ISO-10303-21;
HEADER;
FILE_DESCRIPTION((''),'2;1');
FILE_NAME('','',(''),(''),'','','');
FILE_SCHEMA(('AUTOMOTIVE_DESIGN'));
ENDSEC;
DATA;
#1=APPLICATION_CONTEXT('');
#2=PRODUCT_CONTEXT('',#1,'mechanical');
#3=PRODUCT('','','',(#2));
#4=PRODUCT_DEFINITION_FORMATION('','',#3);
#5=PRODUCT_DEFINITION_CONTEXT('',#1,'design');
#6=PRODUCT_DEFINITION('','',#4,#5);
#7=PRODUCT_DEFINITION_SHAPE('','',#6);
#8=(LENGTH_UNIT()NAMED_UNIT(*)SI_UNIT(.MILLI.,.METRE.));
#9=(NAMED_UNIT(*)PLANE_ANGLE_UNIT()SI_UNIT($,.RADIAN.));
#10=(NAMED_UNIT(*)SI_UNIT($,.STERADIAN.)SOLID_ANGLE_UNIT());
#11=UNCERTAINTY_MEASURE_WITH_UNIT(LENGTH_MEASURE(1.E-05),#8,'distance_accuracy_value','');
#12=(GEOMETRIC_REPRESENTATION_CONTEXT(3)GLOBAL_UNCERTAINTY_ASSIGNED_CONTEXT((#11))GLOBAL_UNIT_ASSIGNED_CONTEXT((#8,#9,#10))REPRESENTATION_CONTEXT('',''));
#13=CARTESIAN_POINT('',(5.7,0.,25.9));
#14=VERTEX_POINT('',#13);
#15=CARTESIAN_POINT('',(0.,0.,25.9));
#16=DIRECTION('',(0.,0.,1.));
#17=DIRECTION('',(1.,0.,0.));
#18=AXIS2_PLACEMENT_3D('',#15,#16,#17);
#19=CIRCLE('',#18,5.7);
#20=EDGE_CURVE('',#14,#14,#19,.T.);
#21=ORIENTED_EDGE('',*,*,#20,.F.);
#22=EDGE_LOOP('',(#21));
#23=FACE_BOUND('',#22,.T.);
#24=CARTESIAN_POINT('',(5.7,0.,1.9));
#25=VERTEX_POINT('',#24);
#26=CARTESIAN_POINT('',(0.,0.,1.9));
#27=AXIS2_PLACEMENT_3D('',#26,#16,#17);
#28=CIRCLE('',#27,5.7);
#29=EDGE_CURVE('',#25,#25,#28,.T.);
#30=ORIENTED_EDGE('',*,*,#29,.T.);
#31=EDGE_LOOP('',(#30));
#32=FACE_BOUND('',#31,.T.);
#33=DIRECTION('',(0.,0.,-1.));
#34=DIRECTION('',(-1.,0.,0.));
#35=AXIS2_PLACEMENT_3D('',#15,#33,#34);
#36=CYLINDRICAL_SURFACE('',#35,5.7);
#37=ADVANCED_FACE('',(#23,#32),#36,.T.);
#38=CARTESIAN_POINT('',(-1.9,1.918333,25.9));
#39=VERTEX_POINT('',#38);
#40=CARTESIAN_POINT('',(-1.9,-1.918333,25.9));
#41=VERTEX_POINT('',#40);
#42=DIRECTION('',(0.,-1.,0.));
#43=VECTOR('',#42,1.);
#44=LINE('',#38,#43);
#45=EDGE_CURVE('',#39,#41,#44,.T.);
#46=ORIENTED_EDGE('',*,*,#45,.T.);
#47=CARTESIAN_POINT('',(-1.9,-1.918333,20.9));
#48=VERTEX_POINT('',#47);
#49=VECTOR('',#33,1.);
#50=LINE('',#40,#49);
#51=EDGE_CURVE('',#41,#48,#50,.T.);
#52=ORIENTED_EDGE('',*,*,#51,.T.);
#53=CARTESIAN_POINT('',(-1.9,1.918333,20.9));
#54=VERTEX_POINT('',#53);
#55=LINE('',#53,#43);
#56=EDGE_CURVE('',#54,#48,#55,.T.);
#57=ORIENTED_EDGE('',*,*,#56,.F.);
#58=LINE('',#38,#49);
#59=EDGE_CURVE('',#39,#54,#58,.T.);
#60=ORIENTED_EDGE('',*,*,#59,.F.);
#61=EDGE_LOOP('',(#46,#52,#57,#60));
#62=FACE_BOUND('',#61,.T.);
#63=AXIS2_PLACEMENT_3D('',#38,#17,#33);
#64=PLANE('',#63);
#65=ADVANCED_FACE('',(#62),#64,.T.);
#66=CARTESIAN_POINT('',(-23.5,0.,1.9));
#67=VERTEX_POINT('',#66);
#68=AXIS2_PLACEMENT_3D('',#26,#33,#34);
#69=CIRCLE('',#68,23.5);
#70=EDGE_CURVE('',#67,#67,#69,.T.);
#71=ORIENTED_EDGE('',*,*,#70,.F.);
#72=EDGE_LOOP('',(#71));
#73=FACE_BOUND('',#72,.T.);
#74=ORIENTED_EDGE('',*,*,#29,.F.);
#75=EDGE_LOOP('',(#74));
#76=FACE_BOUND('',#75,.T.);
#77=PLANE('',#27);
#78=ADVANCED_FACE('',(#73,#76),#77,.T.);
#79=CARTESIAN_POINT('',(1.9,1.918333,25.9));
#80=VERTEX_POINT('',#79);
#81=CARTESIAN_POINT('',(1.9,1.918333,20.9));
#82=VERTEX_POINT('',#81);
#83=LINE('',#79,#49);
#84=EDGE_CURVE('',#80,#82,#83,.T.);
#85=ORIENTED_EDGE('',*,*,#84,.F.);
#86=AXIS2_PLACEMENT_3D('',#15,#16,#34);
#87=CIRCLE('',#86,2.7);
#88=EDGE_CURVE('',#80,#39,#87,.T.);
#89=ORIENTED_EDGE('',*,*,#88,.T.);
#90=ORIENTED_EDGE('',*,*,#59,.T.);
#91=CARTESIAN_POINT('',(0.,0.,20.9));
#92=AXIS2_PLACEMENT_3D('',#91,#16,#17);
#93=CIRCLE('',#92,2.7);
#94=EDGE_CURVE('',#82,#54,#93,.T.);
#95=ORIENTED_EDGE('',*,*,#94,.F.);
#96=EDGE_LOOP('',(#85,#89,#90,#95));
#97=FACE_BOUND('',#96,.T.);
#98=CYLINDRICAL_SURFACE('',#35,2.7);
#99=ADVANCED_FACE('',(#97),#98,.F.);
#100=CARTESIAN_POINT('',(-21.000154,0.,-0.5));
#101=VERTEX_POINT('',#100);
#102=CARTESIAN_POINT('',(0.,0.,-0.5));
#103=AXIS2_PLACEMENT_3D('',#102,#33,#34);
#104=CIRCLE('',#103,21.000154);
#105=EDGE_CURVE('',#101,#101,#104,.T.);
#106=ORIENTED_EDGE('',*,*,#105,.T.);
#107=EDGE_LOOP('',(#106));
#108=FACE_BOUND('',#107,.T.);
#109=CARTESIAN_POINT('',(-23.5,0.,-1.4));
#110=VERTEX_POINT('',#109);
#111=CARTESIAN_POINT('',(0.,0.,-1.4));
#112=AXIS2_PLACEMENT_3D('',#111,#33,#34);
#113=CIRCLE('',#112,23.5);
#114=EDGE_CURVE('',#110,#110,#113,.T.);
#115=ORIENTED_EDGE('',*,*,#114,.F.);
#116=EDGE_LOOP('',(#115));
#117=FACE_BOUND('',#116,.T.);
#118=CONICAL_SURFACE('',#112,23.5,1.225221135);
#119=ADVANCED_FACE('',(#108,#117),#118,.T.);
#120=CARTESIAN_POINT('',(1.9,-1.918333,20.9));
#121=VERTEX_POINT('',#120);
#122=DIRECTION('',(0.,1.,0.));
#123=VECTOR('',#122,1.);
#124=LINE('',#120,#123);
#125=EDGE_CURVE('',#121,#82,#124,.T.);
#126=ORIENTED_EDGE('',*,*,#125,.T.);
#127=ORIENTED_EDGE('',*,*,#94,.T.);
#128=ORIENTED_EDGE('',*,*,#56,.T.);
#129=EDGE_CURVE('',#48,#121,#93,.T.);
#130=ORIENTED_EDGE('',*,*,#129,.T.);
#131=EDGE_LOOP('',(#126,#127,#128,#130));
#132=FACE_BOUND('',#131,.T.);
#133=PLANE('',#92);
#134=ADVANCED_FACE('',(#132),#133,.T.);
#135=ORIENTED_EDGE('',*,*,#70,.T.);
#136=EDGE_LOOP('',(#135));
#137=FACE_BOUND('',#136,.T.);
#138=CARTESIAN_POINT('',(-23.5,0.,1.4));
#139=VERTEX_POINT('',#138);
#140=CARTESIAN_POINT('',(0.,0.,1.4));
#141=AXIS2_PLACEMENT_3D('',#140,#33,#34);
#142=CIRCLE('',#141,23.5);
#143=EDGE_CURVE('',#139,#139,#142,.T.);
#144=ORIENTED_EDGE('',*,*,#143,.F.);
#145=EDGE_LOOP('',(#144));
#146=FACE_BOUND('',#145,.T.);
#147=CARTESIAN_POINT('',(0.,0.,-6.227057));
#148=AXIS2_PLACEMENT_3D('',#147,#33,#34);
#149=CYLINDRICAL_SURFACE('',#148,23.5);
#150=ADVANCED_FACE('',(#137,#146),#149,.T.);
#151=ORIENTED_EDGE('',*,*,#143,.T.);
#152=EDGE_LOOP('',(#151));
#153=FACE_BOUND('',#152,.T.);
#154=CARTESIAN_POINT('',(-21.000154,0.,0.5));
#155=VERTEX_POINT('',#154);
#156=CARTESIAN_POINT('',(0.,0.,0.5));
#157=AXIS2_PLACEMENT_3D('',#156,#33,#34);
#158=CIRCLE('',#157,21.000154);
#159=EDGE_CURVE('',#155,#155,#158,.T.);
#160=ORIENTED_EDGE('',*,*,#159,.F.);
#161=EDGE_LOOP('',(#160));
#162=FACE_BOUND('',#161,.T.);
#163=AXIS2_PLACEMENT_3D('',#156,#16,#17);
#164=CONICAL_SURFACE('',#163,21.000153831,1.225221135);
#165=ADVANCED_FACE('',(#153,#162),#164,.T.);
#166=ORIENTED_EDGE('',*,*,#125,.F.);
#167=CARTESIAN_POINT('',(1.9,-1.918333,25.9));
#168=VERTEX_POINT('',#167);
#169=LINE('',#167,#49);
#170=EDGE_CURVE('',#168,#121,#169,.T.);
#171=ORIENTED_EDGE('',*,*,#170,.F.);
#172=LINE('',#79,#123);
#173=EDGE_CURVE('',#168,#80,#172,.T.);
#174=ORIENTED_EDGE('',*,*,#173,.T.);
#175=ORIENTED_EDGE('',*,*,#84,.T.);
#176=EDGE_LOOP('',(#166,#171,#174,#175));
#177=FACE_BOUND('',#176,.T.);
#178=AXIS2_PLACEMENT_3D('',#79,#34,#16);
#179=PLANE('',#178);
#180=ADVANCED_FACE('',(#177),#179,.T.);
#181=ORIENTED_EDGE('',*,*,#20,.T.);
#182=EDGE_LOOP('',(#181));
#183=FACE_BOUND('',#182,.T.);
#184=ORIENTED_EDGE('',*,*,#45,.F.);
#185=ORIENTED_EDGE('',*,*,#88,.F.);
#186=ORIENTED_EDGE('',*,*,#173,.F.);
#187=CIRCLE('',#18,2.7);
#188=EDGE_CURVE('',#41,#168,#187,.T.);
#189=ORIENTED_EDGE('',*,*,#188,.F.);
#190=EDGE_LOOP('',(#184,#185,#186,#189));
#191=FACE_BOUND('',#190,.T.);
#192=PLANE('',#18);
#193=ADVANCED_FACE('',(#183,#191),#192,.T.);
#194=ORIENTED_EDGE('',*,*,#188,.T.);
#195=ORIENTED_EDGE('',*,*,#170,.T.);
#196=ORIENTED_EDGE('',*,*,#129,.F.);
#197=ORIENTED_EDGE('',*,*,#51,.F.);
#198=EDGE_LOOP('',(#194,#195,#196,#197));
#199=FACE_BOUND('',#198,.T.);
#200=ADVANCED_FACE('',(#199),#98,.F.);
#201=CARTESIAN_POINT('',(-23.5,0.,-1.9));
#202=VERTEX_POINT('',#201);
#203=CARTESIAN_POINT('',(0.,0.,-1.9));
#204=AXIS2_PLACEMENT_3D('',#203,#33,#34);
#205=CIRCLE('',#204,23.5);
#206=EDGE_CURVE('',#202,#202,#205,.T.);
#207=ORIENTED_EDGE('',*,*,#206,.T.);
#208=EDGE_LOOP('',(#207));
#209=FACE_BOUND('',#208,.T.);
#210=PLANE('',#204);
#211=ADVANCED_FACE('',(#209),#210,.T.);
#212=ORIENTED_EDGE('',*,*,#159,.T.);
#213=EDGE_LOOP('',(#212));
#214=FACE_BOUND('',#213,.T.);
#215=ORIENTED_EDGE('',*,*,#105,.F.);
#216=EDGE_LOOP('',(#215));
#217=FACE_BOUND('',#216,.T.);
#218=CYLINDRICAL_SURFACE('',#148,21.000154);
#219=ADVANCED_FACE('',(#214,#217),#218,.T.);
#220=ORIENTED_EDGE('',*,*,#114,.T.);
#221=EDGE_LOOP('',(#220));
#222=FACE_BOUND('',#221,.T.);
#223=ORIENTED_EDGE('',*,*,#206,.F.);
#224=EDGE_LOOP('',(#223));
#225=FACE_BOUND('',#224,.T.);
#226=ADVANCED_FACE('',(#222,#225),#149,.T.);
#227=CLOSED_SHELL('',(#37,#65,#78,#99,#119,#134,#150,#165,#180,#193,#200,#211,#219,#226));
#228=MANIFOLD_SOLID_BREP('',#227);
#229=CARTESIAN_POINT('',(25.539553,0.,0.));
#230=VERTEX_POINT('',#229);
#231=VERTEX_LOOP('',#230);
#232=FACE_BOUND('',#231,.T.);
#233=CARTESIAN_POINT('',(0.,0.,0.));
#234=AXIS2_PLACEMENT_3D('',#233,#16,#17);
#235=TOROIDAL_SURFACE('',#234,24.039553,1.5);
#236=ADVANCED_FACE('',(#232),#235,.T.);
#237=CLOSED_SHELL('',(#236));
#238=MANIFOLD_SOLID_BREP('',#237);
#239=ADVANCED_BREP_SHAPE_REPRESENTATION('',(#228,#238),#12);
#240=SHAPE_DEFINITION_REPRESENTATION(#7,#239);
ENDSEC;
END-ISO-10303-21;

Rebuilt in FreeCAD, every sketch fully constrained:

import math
import FreeCAD as App
import Part
import Sketcher
Q = App.Units.Quantity

doc = App.newDocument("Part")
body = doc.addObject("PartDesign::Body", "Body")

# Sketch on YZ plane
sketch1 = body.newObject("Sketcher::SketchObject", "Sketch")
sketch1.AttachmentSupport = (doc.getObject("YZ_Plane"), [""])
sketch1.MapMode = "FlatFace"
sketch1.addGeometry([
    Part.LineSegment(App.Vector(23.5, 1.9, 0), App.Vector(0, 1.9, 0)),  # 0
    Part.LineSegment(App.Vector(0, 1.9, 0), App.Vector(0, -1.9, 0)),  # 1
    Part.LineSegment(App.Vector(0, -1.9, 0), App.Vector(23.5, -1.9, 0)),  # 2
    Part.LineSegment(App.Vector(23.5, -1.9, 0), App.Vector(23.5, -1.4, 0)),  # 3
    Part.LineSegment(App.Vector(23.5, -1.4, 0), App.Vector(21, -0.5, 0)),  # 4
    Part.LineSegment(App.Vector(21, -0.5, 0), App.Vector(21, 0.5, 0)),  # 5
    Part.LineSegment(App.Vector(21, 0.5, 0), App.Vector(23.5, 1.4, 0)),  # 6
    Part.LineSegment(App.Vector(23.5, 1.4, 0), App.Vector(23.5, 1.9, 0)),  # 7
], False)
sketch1.addConstraint([
    Sketcher.Constraint("Coincident", 0, 2, 1, 1),
    Sketcher.Constraint("Coincident", 1, 2, 2, 1),
    Sketcher.Constraint("Coincident", 2, 2, 3, 1),
    Sketcher.Constraint("Coincident", 3, 2, 4, 1),
    Sketcher.Constraint("Coincident", 4, 2, 5, 1),
    Sketcher.Constraint("Coincident", 5, 2, 6, 1),
    Sketcher.Constraint("Coincident", 6, 2, 7, 1),
    Sketcher.Constraint("Coincident", 7, 2, 0, 1),
    Sketcher.Constraint("Horizontal", 0),
    Sketcher.Constraint("Vertical", 1),
    Sketcher.Constraint("Horizontal", 2),
    Sketcher.Constraint("Vertical", 3),
    Sketcher.Constraint("Vertical", 5),
    Sketcher.Constraint("Vertical", 7),
    Sketcher.Constraint("Symmetric", 0, 2, 1, 2, -1, 1),
    Sketcher.Constraint("Symmetric", 3, 2, 6, 2, -1),
    Sketcher.Constraint("Equal", 4, 6),
    Sketcher.Constraint("DistanceY", 5, 1, 5, 2, Q("1 mm")),
    Sketcher.Constraint("DistanceX", 0, 2, 0, 1, Q("23.5 mm")),
    Sketcher.Constraint("DistanceY", 1, 2, 1, 1, Q("3.8 mm")),
    Sketcher.Constraint("DistanceY", 3, 1, 3, 2, Q("0.5 mm")),
    Sketcher.Constraint("Angle", 4, Q("160.2 deg")),
])
revolution = body.newObject("PartDesign::Revolution", "Revolution")
revolution.Profile = sketch1
revolution.ReferenceAxis = (sketch1, ["V_Axis"])
revolution.Angle = 360

# Sketch on XY plane
sketch2 = body.newObject("Sketcher::SketchObject", "Sketch001")
sketch2.AttachmentSupport = (doc.getObject("XY_Plane"), [""])
sketch2.MapMode = "FlatFace"
sketch2.AttachmentOffset = App.Placement(App.Vector(0, 0, 1.9), App.Rotation())
sketch2.addGeometry([
    Part.Circle(App.Vector(0, 0, 0), App.Vector(0, 0, 1), 5.7),  # 0
    Part.LineSegment(App.Vector(-1.9, -1.9, 0), App.Vector(-1.9, 1.9, 0)),  # 1
    Part.ArcOfCircle(Part.Circle(App.Vector(0, 0, 0), App.Vector(0, 0, 1), 2.7), math.radians(45), math.radians(135)),  # 2
    Part.LineSegment(App.Vector(1.9, 1.9, 0), App.Vector(1.9, -1.9, 0)),  # 3
    Part.ArcOfCircle(Part.Circle(App.Vector(0, 0, 0), App.Vector(0, 0, 1), 2.7), math.radians(-135), math.radians(-45)),  # 4
], False)
sketch2.addConstraint([
    Sketcher.Constraint("Coincident", 1, 2, 2, 2),
    Sketcher.Constraint("Coincident", 2, 1, 3, 1),
    Sketcher.Constraint("Coincident", 3, 2, 4, 2),
    Sketcher.Constraint("Coincident", 4, 1, 1, 1),
    Sketcher.Constraint("Vertical", 1),
    Sketcher.Constraint("Vertical", 3),
    Sketcher.Constraint("Coincident", 0, 3, -1, 1),
    Sketcher.Constraint("Coincident", 2, 3, -1, 1),
    Sketcher.Constraint("Coincident", 4, 3, -1, 1),
    Sketcher.Constraint("Equal", 2, 4),
    Sketcher.Constraint("Horizontal", 1, 2, 2, 1),
    Sketcher.Constraint("Diameter", 0, Q("11.4 mm")),
    Sketcher.Constraint("Radius", 2, Q("2.7 mm")),
    Sketcher.Constraint("DistanceX", 1, 2, -1, 1, Q("1.9 mm")),
])
pad1 = body.newObject("PartDesign::Pad", "Pad")
pad1.Profile = sketch2
pad1.Length = 24

# Sketch on XY plane
sketch3 = body.newObject("Sketcher::SketchObject", "Sketch002")
sketch3.AttachmentSupport = (doc.getObject("XY_Plane"), [""])
sketch3.MapMode = "FlatFace"
sketch3.AttachmentOffset = App.Placement(App.Vector(0, 0, 20.9), App.Rotation())
sketch3.addGeometry([
    Part.LineSegment(App.Vector(-1.9, 1.9, 0), App.Vector(-1.9, -1.9, 0)),
    Part.ArcOfCircle(Part.Circle(App.Vector(0, 0, 0), App.Vector(0, 0, 1), 2.7), math.radians(-135), math.radians(-45)),
    Part.LineSegment(App.Vector(1.9, -1.9, 0), App.Vector(1.9, 1.9, 0)),
    Part.ArcOfCircle(Part.Circle(App.Vector(0, 0, 0), App.Vector(0, 0, 1), 2.7), math.radians(45), math.radians(135)),
], False)
sketch3.addConstraint([
    Sketcher.Constraint("Coincident", 0, 2, 1, 1),
    Sketcher.Constraint("Coincident", 1, 2, 2, 1),
    Sketcher.Constraint("Coincident", 2, 2, 3, 1),
    Sketcher.Constraint("Coincident", 3, 2, 0, 1),
    Sketcher.Constraint("Vertical", 0),
    Sketcher.Constraint("Vertical", 2),
    Sketcher.Constraint("Coincident", 1, 3, -1, 1),
    Sketcher.Constraint("Coincident", 3, 3, -1, 1),
    Sketcher.Constraint("Equal", 1, 3),
    Sketcher.Constraint("Horizontal", 0, 2, 1, 2),
    Sketcher.Constraint("Radius", 1, Q("2.7 mm")),
    Sketcher.Constraint("DistanceX", 0, 2, -1, 1, Q("1.9 mm")),
])
pad2 = body.newObject("PartDesign::Pad", "Pad001")
pad2.Profile = sketch3
pad2.Type = "UpToFirst"
pad2.Reversed = True
body2 = doc.addObject("PartDesign::Body", "Body001")

# Sketch on YZ plane
sketch4 = body2.newObject("Sketcher::SketchObject", "Sketch003")
sketch4.AttachmentSupport = (doc.getObject("YZ_Plane001"), [""])
sketch4.MapMode = "FlatFace"
sketch4.addGeometry(Part.Circle(App.Vector(24, 0, 0), App.Vector(0, 0, 1), 1.5), False)
sketch4.addConstraint([
    Sketcher.Constraint("PointOnObject", 0, 3, -1),
    Sketcher.Constraint("Diameter", 0, Q("3 mm")),
    Sketcher.Constraint("DistanceX", -1, 1, 0, 3, Q("24.039553 mm")),
])
revolution2 = body2.newObject("PartDesign::Revolution", "Revolution001")
revolution2.Profile = sketch4
revolution2.ReferenceAxis = (sketch4, ["V_Axis"])
revolution2.Angle = 360

doc.recompute()
